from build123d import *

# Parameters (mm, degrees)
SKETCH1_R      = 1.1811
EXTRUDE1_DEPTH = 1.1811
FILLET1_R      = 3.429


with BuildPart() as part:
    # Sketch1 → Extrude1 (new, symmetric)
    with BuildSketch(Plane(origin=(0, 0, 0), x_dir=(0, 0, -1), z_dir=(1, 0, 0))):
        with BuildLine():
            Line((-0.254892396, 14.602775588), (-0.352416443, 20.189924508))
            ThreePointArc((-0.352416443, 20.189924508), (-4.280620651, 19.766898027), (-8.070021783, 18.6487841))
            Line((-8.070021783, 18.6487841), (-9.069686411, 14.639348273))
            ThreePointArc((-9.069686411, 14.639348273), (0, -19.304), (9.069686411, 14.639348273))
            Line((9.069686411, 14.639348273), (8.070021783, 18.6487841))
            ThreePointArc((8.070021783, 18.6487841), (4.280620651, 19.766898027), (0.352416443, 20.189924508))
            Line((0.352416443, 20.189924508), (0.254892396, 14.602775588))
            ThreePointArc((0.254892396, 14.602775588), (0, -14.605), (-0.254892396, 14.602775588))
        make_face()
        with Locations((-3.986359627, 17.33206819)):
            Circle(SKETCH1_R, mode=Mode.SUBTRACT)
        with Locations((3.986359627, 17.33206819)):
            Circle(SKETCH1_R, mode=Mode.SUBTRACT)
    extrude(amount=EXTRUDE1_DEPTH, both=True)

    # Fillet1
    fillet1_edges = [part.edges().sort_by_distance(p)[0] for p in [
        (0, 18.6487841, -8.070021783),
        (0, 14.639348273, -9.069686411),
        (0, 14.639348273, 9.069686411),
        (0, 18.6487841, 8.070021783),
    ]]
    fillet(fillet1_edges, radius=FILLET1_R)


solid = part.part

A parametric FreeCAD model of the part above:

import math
import FreeCAD as App
import Part
import Sketcher
Q = App.Units.Quantity


def edges_at(feature, points):
    """Names of the edges that pass closest to the given points."""
    edges = feature.Shape.Edges
    near = lambda p: min(range(len(edges)), key=lambda i: edges[i].distToShape(Part.Vertex(*p))[0])
    return sorted({f"Edge{near(p) + 1}" for p in points})

doc = App.newDocument("Part")
body = doc.addObject("PartDesign::Body", "Body")

sketch1 = body.newObject("Sketcher::SketchObject", "Sketch")
sketch1.AttachmentSupport = (doc.getObject("YZ_Plane"), [""])
sketch1.MapMode = "FlatFace"
sketch1.addGeometry([
    Part.LineSegment(App.Vector(14.602776, 0.254892, 0), App.Vector(20.189925, 0.352416, 0)),
    Part.ArcOfCircle(Part.Circle(App.Vector(-1.829154, -0.031928, 0), App.Vector(0, 0, 1), 22.022433), math.radians(1), math.radians(21.585874)),
    Part.LineSegment(App.Vector(18.648784, 8.070022, 0), App.Vector(14.639348, 9.069686, 0)),
    Part.ArcOfCircle(Part.Circle(App.Vector(-1.120613, 0, 0), App.Vector(0, 0, 1), 18.183387), math.radians(29.91996), math.radians(330.08004)),
    Part.LineSegment(App.Vector(14.639348, -9.069686, 0), App.Vector(18.648784, -8.070022, 0)),
    Part.ArcOfCircle(Part.Circle(App.Vector(-1.829154, 0.031928, 0), App.Vector(0, 0, 1), 22.022433), math.radians(-21.585874), math.radians(-1)),
    Part.LineSegment(App.Vector(20.189925, -0.352416, 0), App.Vector(14.602776, -0.254892, 0)),
    Part.ArcOfCircle(Part.Circle(App.Vector(0, 0, 0), App.Vector(0, 0, 1), 14.605), math.radians(1), math.radians(359)),
    Part.Circle(App.Vector(17.332068, 3.98636, 0), App.Vector(0, 0, 1), 1.1811),
    Part.Circle(App.Vector(17.332068, -3.98636, 0), App.Vector(0, 0, 1), 1.1811),
], False)
sketch1.addConstraint([
    Sketcher.Constraint("Coincident", 0, 2, 1, 1),
    Sketcher.Constraint("Coincident", 1, 2, 2, 1),
    Sketcher.Constraint("Coincident", 2, 2, 3, 1),
    Sketcher.Constraint("Coincident", 3, 2, 4, 1),
    Sketcher.Constraint("Coincident", 4, 2, 5, 1),
    Sketcher.Constraint("Coincident", 5, 2, 6, 1),
    Sketcher.Constraint("Coincident", 6, 2, 7, 2),
    Sketcher.Constraint("Coincident", 7, 1, 0, 1),
    Sketcher.Constraint("Coincident", 7, 3, -1, 1),
    Sketcher.Constraint("Equal", 1, 5),
    Sketcher.Constraint("Equal", 8, 9),
    Sketcher.Constraint("Symmetric", 1, 3, 5, 3, -1),
    Sketcher.Constraint("Symmetric", 8, 3, 9, 3, -1),
    Sketcher.Constraint("Symmetric", 2, 2, 3, 2, -1),
    Sketcher.Constraint("Vertical", 1, 2, 4, 2),
    Sketcher.Constraint("Vertical", 0, 2, 5, 2),
    Sketcher.Constraint("Vertical", 6, 2, 7, 1),
    Sketcher.Constraint("Diameter", 8, Q("0.093 in")),
    Sketcher.Constraint("Angle", 0, Q("1 deg")),
    Sketcher.Constraint("Angle", 2, Q("166 deg")),
    Sketcher.Constraint("Radius", 7, Q("0.575 in")),
    Sketcher.Constraint("Distance", 0, Q("0.22 in")),
    Sketcher.Constraint("Radius", 1, 22.022433),
    Sketcher.Constraint("Radius", 3, 18.183387),
    Sketcher.Constraint("Distance", 2, 4.132179),
    Sketcher.Constraint("DistanceY", 1, 3, -1, 1, 0.031928),
    Sketcher.Constraint("DistanceX", -1, 1, 8, 3, 17.332068),
    Sketcher.Constraint("DistanceY", -1, 1, 8, 3, 3.98636),
    Sketcher.Constraint("DistanceY", -1, 1, 1, 2, 8.070022),
    Sketcher.Constraint("DistanceX", 5, 3, 0, 2, 22.019079),
])
pad1 = body.newObject("PartDesign::Pad", "Pad")
pad1.Profile = sketch1
pad1.Length = Q("0.093 in")
pad1.Midplane = True
doc.recompute()

fillet = body.newObject("PartDesign::Fillet", "Fillet")
fillet.Base = (pad1, edges_at(pad1, [
    (0, 18.649, -8.07),
    (0, 14.639, -9.07),
    (0, 14.639, 9.07),
    (0, 18.649, 8.07),
]))
fillet.Radius = Q("0.135 in")

doc.recompute()
